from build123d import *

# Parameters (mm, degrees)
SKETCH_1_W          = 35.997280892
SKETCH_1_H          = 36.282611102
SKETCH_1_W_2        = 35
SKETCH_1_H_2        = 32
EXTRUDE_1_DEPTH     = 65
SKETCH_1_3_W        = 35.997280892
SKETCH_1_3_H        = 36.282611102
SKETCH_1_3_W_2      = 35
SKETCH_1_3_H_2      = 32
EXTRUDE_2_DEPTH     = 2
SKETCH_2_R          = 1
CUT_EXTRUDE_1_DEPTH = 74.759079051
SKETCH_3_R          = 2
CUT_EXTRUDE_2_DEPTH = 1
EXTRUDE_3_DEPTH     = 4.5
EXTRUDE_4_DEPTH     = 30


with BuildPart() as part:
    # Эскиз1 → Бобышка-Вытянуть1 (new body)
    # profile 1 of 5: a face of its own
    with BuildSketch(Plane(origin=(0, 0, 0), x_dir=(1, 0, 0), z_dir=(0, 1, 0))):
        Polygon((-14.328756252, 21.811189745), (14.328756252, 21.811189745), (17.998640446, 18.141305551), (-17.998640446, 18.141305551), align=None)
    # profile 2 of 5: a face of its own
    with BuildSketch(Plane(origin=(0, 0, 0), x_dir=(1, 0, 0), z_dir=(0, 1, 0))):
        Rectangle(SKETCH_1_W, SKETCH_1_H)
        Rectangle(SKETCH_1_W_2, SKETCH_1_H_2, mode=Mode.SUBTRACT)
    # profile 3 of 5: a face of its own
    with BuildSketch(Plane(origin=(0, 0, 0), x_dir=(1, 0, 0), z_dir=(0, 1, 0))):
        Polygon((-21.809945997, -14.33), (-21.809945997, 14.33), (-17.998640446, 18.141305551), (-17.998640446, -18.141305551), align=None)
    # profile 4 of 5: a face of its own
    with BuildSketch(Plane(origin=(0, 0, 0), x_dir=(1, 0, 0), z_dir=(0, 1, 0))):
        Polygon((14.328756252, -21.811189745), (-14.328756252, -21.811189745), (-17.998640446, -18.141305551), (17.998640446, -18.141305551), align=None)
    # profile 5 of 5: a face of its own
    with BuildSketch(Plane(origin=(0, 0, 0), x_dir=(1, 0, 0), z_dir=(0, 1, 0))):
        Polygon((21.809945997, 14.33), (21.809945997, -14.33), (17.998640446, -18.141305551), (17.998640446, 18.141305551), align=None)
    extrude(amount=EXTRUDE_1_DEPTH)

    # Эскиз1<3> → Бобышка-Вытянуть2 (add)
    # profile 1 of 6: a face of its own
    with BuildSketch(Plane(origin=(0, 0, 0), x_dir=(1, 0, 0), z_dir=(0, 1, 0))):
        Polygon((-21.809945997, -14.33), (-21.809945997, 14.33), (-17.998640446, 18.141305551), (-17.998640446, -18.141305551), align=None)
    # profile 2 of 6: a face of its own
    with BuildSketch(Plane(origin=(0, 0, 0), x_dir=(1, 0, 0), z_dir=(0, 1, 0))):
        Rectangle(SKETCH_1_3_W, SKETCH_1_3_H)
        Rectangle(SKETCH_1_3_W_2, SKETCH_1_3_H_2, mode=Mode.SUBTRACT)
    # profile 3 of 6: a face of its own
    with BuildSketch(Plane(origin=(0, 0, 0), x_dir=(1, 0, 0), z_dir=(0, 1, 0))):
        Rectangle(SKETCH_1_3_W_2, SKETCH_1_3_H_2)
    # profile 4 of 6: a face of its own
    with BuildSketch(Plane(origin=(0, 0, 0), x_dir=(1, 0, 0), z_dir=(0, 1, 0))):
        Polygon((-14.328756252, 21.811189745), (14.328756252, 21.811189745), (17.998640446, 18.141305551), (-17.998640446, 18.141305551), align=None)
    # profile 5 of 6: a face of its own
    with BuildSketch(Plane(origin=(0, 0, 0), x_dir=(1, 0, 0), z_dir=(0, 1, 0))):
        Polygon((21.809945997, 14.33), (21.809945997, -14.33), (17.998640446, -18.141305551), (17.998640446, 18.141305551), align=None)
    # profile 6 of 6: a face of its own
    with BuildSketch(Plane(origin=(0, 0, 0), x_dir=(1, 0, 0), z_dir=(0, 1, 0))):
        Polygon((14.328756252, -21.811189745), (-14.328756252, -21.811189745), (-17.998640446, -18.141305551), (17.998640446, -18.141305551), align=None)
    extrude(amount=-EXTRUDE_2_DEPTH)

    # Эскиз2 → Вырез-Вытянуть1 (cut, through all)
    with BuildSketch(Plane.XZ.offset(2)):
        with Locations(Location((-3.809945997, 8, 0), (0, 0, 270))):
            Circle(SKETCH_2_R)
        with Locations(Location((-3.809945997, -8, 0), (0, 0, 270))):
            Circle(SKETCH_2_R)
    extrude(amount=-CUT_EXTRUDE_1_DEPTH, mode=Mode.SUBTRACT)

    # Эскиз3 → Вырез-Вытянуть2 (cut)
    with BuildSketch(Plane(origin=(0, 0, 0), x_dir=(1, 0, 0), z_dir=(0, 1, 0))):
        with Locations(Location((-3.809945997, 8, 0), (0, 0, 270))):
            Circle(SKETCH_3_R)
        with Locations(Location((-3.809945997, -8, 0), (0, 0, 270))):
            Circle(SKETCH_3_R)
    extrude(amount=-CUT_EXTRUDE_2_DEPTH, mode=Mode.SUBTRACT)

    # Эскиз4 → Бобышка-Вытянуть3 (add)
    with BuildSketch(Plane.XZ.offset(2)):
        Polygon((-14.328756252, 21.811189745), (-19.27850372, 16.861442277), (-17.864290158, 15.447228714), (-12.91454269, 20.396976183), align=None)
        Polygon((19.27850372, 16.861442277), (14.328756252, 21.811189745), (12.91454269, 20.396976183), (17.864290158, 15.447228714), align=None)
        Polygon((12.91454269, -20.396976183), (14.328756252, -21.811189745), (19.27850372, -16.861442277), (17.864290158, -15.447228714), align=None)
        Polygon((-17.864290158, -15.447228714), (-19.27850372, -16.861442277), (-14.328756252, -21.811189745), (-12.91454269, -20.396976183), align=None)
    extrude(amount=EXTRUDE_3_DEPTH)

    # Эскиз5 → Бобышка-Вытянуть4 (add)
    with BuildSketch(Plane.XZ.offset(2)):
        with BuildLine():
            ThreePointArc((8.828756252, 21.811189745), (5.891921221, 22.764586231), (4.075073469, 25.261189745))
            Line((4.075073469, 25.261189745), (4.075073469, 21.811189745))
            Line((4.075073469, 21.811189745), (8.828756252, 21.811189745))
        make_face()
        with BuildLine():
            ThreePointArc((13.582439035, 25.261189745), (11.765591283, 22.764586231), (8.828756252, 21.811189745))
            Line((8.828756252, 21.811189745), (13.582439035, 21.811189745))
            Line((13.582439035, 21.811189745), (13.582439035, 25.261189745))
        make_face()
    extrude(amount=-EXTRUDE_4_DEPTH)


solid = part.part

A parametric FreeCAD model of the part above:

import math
import FreeCAD as App
import Part
import Sketcher
Q = App.Units.Quantity

doc = App.newDocument("Part")
body = doc.addObject("PartDesign::Body", "Body")

# Sketch on XZ plane
sketch1 = body.newObject("Sketcher::SketchObject", "Sketch")
sketch1.AttachmentSupport = (doc.getObject("XZ_Plane"), [""])
sketch1.MapMode = "FlatFace"
sketch1.addGeometry([
    Part.LineSegment(App.Vector(14, -22, 0), App.Vector(-14, -22, 0)),  # 0
    Part.LineSegment(App.Vector(-14, -22, 0), App.Vector(-22, -14, 0)),  # 1
    Part.LineSegment(App.Vector(-22, -14, 0), App.Vector(-22, 14, 0)),  # 2
    Part.LineSegment(App.Vector(-22, 14, 0), App.Vector(-14, 22, 0)),  # 3
    Part.LineSegment(App.Vector(-14, 22, 0), App.Vector(14, 22, 0)),  # 4
    Part.LineSegment(App.Vector(14, 22, 0), App.Vector(22, 14, 0)),  # 5
    Part.LineSegment(App.Vector(22, 14, 0), App.Vector(22, -14, 0)),  # 6
    Part.LineSegment(App.Vector(22, -14, 0), App.Vector(14, -22, 0)),  # 7
    Part.LineSegment(App.Vector(-18, 16, 0), App.Vector(-18, -16, 0)),  # 8
    Part.LineSegment(App.Vector(-18, -16, 0), App.Vector(18, -16, 0)),  # 9
    Part.LineSegment(App.Vector(18, -16, 0), App.Vector(18, 16, 0)),  # 10
    Part.LineSegment(App.Vector(18, 16, 0), App.Vector(-18, 16, 0)),  # 11
], False)
sketch1.addConstraint([
    Sketcher.Constraint("Coincident", 0, 2, 1, 1),
    Sketcher.Constraint("Coincident", 1, 2, 2, 1),
    Sketcher.Constraint("Coincident", 2, 2, 3, 1),
    Sketcher.Constraint("Coincident", 3, 2, 4, 1),
    Sketcher.Constraint("Coincident", 4, 2, 5, 1),
    Sketcher.Constraint("Coincident", 5, 2, 6, 1),
    Sketcher.Constraint("Coincident", 6, 2, 7, 1),
    Sketcher.Constraint("Coincident", 7, 2, 0, 1),
    Sketcher.Constraint("Coincident", 8, 2, 9, 1),
    Sketcher.Constraint("Coincident", 9, 2, 10, 1),
    Sketcher.Constraint("Coincident", 10, 2, 11, 1),
    Sketcher.Constraint("Coincident", 11, 2, 8, 1),
    Sketcher.Constraint("Horizontal", 0),
    Sketcher.Constraint("Vertical", 2),
    Sketcher.Constraint("Horizontal", 4),
    Sketcher.Constraint("Vertical", 6),
    Sketcher.Constraint("Vertical", 8),
    Sketcher.Constraint("Horizontal", 9),
    Sketcher.Constraint("Vertical", 10),
    Sketcher.Constraint("Horizontal", 11),
    Sketcher.Constraint("Symmetric", 0, 2, 4, 2, -1, 1),
    Sketcher.Constraint("Symmetric", 1, 2, 5, 2, -1, 1),
    Sketcher.Constraint("Symmetric", 8, 2, 10, 2, -1, 1),
    Sketcher.Constraint("Perpendicular", 1, 3),
    Sketcher.Constraint("Perpendicular", 5, 7),
    Sketcher.Constraint("Horizontal", 2, 2, 5, 2),
    Sketcher.Constraint("Horizontal", 1, 2, 6, 2),
    Sketcher.Constraint("Vertical", 0, 2, 3, 2),
    Sketcher.Constraint("DistanceX", 9, 1, 9, 2, Q("35 mm")),
    Sketcher.Constraint("DistanceY", 8, 2, 8, 1, Q("32 mm")),
    Sketcher.Constraint("DistanceY", 2, 1, 2, 2, Q("28.66 mm")),
    Sketcher.Constraint("Distance", 1, Q("10.58 mm")),
    Sketcher.Constraint("DistanceX", 0, 2, 0, 1, Q("28.657513 mm")),
])
pad1 = body.newObject("PartDesign::Pad", "Pad")
pad1.Profile = sketch1
pad1.Length = 65
pad1.Reversed = True

# Sketch on XZ plane
sketch2 = body.newObject("Sketcher::SketchObject", "Sketch001")
sketch2.AttachmentSupport = (doc.getObject("XZ_Plane"), [""])
sketch2.MapMode = "FlatFace"
sketch2.addGeometry([
    Part.LineSegment(App.Vector(-22, -14, 0), App.Vector(-22, 14, 0)),  # 0
    Part.LineSegment(App.Vector(-22, 14, 0), App.Vector(-14, 22, 0)),  # 1
    Part.LineSegment(App.Vector(-14, 22, 0), App.Vector(14, 22, 0)),  # 2
    Part.LineSegment(App.Vector(14, 22, 0), App.Vector(22, 14, 0)),  # 3
    Part.LineSegment(App.Vector(22, 14, 0), App.Vector(22, -14, 0)),  # 4
    Part.LineSegment(App.Vector(22, -14, 0), App.Vector(14, -22, 0)),  # 5
    Part.LineSegment(App.Vector(14, -22, 0), App.Vector(-14, -22, 0)),  # 6
    Part.LineSegment(App.Vector(-14, -22, 0), App.Vector(-22, -14, 0)),  # 7
], False)
sketch2.addConstraint([
    Sketcher.Constraint("Coincident", 0, 2, 1, 1),
    Sketcher.Constraint("Coincident", 1, 2, 2, 1),
    Sketcher.Constraint("Coincident", 2, 2, 3, 1),
    Sketcher.Constraint("Coincident", 3, 2, 4, 1),
    Sketcher.Constraint("Coincident", 4, 2, 5, 1),
    Sketcher.Constraint("Coincident", 5, 2, 6, 1),
    Sketcher.Constraint("Coincident", 6, 2, 7, 1),
    Sketcher.Constraint("Coincident", 7, 2, 0, 1),
    Sketcher.Constraint("Vertical", 0),
    Sketcher.Constraint("Horizontal", 2),
    Sketcher.Constraint("Vertical", 4),
    Sketcher.Constraint("Horizontal", 6),
    Sketcher.Constraint("Symmetric", 0, 2, 4, 2, -1, 1),
    Sketcher.Constraint("Symmetric", 1, 2, 5, 2, -1, 1),
    Sketcher.Constraint("Perpendicular", 1, 3),
    Sketcher.Constraint("Perpendicular", 5, 7),
    Sketcher.Constraint("Horizontal", 0, 2, 3, 2),
    Sketcher.Constraint("Horizontal", 4, 2, 7, 2),
    Sketcher.Constraint("Vertical", 2, 2, 5, 2),
    Sketcher.Constraint("DistanceY", 0, 1, 0, 2, Q("28.66 mm")),
    Sketcher.Constraint("Distance", 1, Q("10.58 mm")),
    Sketcher.Constraint("DistanceX", 2, 1, 2, 2, Q("28.657513 mm")),
])
pad2 = body.newObject("PartDesign::Pad", "Pad001")
pad2.Profile = sketch2
pad2.Length = 2

# Sketch on XZ plane
sketch3 = body.newObject("Sketcher::SketchObject", "Sketch002")
sketch3.AttachmentSupport = (doc.getObject("XZ_Plane"), [""])
sketch3.MapMode = "FlatFace"
sketch3.AttachmentOffset = App.Placement(App.Vector(0, 0, 2), App.Rotation())
sketch3.addGeometry([
    Part.Circle(App.Vector(-3.8, 8, 0), App.Vector(0, 0, 1), 1),
    Part.Circle(App.Vector(-3.8, -8, 0), App.Vector(0, 0, 1), 1),
], False)
sketch3.addConstraint([
    Sketcher.Constraint("Equal", 0, 1),
    Sketcher.Constraint("Symmetric", 0, 3, 1, 3, -1),
    Sketcher.Constraint("Diameter", 0, Q("2 mm")),
    Sketcher.Constraint("DistanceY", -1, 1, 0, 3, Q("8 mm")),
    Sketcher.Constraint("DistanceX", 0, 3, -1, 1, Q("3.809946 mm")),
])
pocket1 = body.newObject("PartDesign::Pocket", "Pocket")
pocket1.Profile = sketch3
pocket1.Type = "ThroughAll"

# Sketch on XZ plane
sketch4 = body.newObject("Sketcher::SketchObject", "Sketch003")
sketch4.AttachmentSupport = (doc.getObject("XZ_Plane"), [""])
sketch4.MapMode = "FlatFace"
sketch4.addGeometry([
    Part.Circle(App.Vector(-3.8, -8, 0), App.Vector(0, 0, 1), 2),
    Part.Circle(App.Vector(-3.8, 8, 0), App.Vector(0, 0, 1), 2),
], False)
sketch4.addConstraint([
    Sketcher.Constraint("Equal", 0, 1),
    Sketcher.Constraint("Symmetric", 0, 3, 1, 3, -1),
    Sketcher.Constraint("Diameter", 0, Q("4 mm")),
    Sketcher.Constraint("DistanceY", 0, 3, -1, 1, Q("8 mm")),
    Sketcher.Constraint("DistanceX", 0, 3, -1, 1, Q("3.809946 mm")),
])
pocket2 = body.newObject("PartDesign::Pocket", "Pocket001")
pocket2.Profile = sketch4
pocket2.Length = 1
pocket2.Reversed = True

# Sketch on XZ plane
sketch5 = body.newObject("Sketcher::SketchObject", "Sketch004")
sketch5.AttachmentSupport = (doc.getObject("XZ_Plane"), [""])
sketch5.MapMode = "FlatFace"
sketch5.AttachmentOffset = App.Placement(App.Vector(0, 0, 2), App.Rotation())
sketch5.addGeometry([
    Part.LineSegment(App.Vector(-14.3, 21.8, 0), App.Vector(-19.3, 16.9, 0)),  # 0
    Part.LineSegment(App.Vector(-19.3, 16.9, 0), App.Vector(-17.9, 15.4, 0)),  # 1
    Part.LineSegment(App.Vector(-17.9, 15.4, 0), App.Vector(-12.9, 20.4, 0)),  # 2
    Part.LineSegment(App.Vector(-12.9, 20.4, 0), App.Vector(-14.3, 21.8, 0)),  # 3
    Part.LineSegment(App.Vector(19.3, 16.9, 0), App.Vector(14.3, 21.8, 0)),  # 4
    Part.LineSegment(App.Vector(14.3, 21.8, 0), App.Vector(12.9, 20.4, 0)),  # 5
    Part.LineSegment(App.Vector(12.9, 20.4, 0), App.Vector(17.9, 15.4, 0)),  # 6
    Part.LineSegment(App.Vector(17.9, 15.4, 0), App.Vector(19.3, 16.9, 0)),  # 7
    Part.LineSegment(App.Vector(12.9, -20.4, 0), App.Vector(14.3, -21.8, 0)),  # 8
    Part.LineSegment(App.Vector(14.3, -21.8, 0), App.Vector(19.3, -16.9, 0)),  # 9
    Part.LineSegment(App.Vector(19.3, -16.9, 0), App.Vector(17.9, -15.4, 0)),  # 10
    Part.LineSegment(App.Vector(17.9, -15.4, 0), App.Vector(12.9, -20.4, 0)),  # 11
    Part.LineSegment(App.Vector(-17.9, -15.4, 0), App.Vector(-19.3, -16.9, 0)),  # 12
    Part.LineSegment(App.Vector(-19.3, -16.9, 0), App.Vector(-14.3, -21.8, 0)),  # 13
    Part.LineSegment(App.Vector(-14.3, -21.8, 0), App.Vector(-12.9, -20.4, 0)),  # 14
    Part.LineSegment(App.Vector(-12.9, -20.4, 0), App.Vector(-17.9, -15.4, 0)),  # 15
], False)
sketch5.addConstraint([
    Sketcher.Constraint("Coincident", 0, 2, 1, 1),
    Sketcher.Constraint("Coincident", 1, 2, 2, 1),
    Sketcher.Constraint("Coincident", 2, 2, 3, 1),
    Sketcher.Constraint("Coincident", 3, 2, 0, 1),
    Sketcher.Constraint("Coincident", 4, 2, 5, 1),
    Sketcher.Constraint("Coincident", 5, 2, 6, 1),
    Sketcher.Constraint("Coincident", 6, 2, 7, 1),
    Sketcher.Constraint("Coincident", 7, 2, 4, 1),
    Sketcher.Constraint("Coincident", 8, 2, 9, 1),
    Sketcher.Constraint("Coincident", 9, 2, 10, 1),
    Sketcher.Constraint("Coincident", 10, 2, 11, 1),
    Sketcher.Constraint("Coincident", 11, 2, 8, 1),
    Sketcher.Constraint("Coincident", 12, 2, 13, 1),
    Sketcher.Constraint("Coincident", 13, 2, 14, 1),
    Sketcher.Constraint("Coincident", 14, 2, 15, 1),
    Sketcher.Constraint("Coincident", 15, 2, 12, 1),
    Sketcher.Constraint("Symmetric", 3, 2, 8, 2, -1, 1),
    Sketcher.Constraint("Symmetric", 0, 2, 9, 2, -1, 1),
    Sketcher.Constraint("Symmetric", 1, 2, 10, 2, -1, 1),
    Sketcher.Constraint("Symmetric", 2, 2, 11, 2, -1, 1),
    Sketcher.Constraint("Symmetric", 7, 2, 12, 2, -1, 1),
    Sketcher.Constraint("Symmetric", 4, 2, 13, 2, -1, 1),
    Sketcher.Constraint("Symmetric", 5, 2, 14, 2, -1, 1),
    Sketcher.Constraint("Symmetric", 6, 2, 15, 2, -1, 1),
    Sketcher.Constraint("Symmetric", 3, 2, 4, 2, -2),
    Sketcher.Constraint("Symmetric", 2, 2, 5, 2, -2),
    Sketcher.Constraint("Symmetric", 1, 2, 6, 2, -2),
    Sketcher.Constraint("Symmetric", 0, 2, 7, 2, -2),
    Sketcher.Constraint("Perpendicular", 0, 1),
    Sketcher.Constraint("Perpendicular", 1, 2),
    Sketcher.Constraint("Perpendicular", 2, 3),
    Sketcher.Constraint("Parallel", 3, 4),
    Sketcher.Constraint("Distance", 0, Q("7 mm")),
    Sketcher.Constraint("Distance", 1, Q("2 mm")),
    Sketcher.Constraint("DistanceX", 2, 2, 4, 2, Q("27.243299 mm")),
    Sketcher.Constraint("DistanceY", -1, 1, 1, 2, Q("15.447229 mm")),
])
pad3 = body.newObject("PartDesign::Pad", "Pad002")
pad3.Profile = sketch5
pad3.Length = 4.5

# Sketch on XZ plane
sketch6 = body.newObject("Sketcher::SketchObject", "Sketch005")
sketch6.AttachmentSupport = (doc.getObject("XZ_Plane"), [""])
sketch6.MapMode = "FlatFace"
sketch6.AttachmentOffset = App.Placement(App.Vector(0, 0, 2), App.Rotation())
sketch6.addGeometry([
    Part.ArcOfCircle(Part.Circle(App.Vector(8.8, 26.8, 0), App.Vector(0, 0, 1), 5), math.radians(-162), math.radians(-90)),  # 0
    Part.LineSegment(App.Vector(4.1, 25.3, 0), App.Vector(4.1, 21.8, 0)),  # 1
    Part.LineSegment(App.Vector(4.1, 21.8, 0), App.Vector(8.8, 21.8, 0)),  # 2
    Part.ArcOfCircle(Part.Circle(App.Vector(8.8, 26.8, 0), App.Vector(0, 0, 1), 5), math.radians(-90), math.radians(-18)),  # 3
    Part.LineSegment(App.Vector(8.8, 21.8, 0), App.Vector(13.6, 21.8, 0)),  # 4
    Part.LineSegment(App.Vector(13.6, 21.8, 0), App.Vector(13.6, 25.3, 0)),  # 5
], False)
sketch6.addConstraint([
    Sketcher.Constraint("Coincident", 0, 1, 1, 1),
    Sketcher.Constraint("Coincident", 1, 2, 2, 1),
    Sketcher.Constraint("Tangent", 2, 2, 0, 2),
    Sketcher.Constraint("Tangent", 3, 1, 4, 1),
    Sketcher.Constraint("Coincident", 4, 2, 5, 1),
    Sketcher.Constraint("Coincident", 5, 2, 3, 2),
    Sketcher.Constraint("Vertical", 1),
    Sketcher.Constraint("Horizontal", 2),
    Sketcher.Constraint("Horizontal", 4),
    Sketcher.Constraint("Vertical", 5),
    Sketcher.Constraint("Coincident", 3, 3, 0, 3),
    Sketcher.Constraint("Equal", 0, 3),
    Sketcher.Constraint("Horizontal", 0, 1, 5, 2),
    Sketcher.Constraint("Radius", 0, Q("5 mm")),
    Sketcher.Constraint("DistanceY", 1, 2, 1, 1, Q("3.45 mm")),
    Sketcher.Constraint("DistanceY", -1, 1, 0, 3, Q("26.81119 mm")),
    Sketcher.Constraint("DistanceX", -1, 1, 4, 2, Q("13.582439 mm")),
])
pad4 = body.newObject("PartDesign::Pad", "Pad003")
pad4.Profile = sketch6
pad4.Length = 30
pad4.Reversed = True

doc.recompute()
